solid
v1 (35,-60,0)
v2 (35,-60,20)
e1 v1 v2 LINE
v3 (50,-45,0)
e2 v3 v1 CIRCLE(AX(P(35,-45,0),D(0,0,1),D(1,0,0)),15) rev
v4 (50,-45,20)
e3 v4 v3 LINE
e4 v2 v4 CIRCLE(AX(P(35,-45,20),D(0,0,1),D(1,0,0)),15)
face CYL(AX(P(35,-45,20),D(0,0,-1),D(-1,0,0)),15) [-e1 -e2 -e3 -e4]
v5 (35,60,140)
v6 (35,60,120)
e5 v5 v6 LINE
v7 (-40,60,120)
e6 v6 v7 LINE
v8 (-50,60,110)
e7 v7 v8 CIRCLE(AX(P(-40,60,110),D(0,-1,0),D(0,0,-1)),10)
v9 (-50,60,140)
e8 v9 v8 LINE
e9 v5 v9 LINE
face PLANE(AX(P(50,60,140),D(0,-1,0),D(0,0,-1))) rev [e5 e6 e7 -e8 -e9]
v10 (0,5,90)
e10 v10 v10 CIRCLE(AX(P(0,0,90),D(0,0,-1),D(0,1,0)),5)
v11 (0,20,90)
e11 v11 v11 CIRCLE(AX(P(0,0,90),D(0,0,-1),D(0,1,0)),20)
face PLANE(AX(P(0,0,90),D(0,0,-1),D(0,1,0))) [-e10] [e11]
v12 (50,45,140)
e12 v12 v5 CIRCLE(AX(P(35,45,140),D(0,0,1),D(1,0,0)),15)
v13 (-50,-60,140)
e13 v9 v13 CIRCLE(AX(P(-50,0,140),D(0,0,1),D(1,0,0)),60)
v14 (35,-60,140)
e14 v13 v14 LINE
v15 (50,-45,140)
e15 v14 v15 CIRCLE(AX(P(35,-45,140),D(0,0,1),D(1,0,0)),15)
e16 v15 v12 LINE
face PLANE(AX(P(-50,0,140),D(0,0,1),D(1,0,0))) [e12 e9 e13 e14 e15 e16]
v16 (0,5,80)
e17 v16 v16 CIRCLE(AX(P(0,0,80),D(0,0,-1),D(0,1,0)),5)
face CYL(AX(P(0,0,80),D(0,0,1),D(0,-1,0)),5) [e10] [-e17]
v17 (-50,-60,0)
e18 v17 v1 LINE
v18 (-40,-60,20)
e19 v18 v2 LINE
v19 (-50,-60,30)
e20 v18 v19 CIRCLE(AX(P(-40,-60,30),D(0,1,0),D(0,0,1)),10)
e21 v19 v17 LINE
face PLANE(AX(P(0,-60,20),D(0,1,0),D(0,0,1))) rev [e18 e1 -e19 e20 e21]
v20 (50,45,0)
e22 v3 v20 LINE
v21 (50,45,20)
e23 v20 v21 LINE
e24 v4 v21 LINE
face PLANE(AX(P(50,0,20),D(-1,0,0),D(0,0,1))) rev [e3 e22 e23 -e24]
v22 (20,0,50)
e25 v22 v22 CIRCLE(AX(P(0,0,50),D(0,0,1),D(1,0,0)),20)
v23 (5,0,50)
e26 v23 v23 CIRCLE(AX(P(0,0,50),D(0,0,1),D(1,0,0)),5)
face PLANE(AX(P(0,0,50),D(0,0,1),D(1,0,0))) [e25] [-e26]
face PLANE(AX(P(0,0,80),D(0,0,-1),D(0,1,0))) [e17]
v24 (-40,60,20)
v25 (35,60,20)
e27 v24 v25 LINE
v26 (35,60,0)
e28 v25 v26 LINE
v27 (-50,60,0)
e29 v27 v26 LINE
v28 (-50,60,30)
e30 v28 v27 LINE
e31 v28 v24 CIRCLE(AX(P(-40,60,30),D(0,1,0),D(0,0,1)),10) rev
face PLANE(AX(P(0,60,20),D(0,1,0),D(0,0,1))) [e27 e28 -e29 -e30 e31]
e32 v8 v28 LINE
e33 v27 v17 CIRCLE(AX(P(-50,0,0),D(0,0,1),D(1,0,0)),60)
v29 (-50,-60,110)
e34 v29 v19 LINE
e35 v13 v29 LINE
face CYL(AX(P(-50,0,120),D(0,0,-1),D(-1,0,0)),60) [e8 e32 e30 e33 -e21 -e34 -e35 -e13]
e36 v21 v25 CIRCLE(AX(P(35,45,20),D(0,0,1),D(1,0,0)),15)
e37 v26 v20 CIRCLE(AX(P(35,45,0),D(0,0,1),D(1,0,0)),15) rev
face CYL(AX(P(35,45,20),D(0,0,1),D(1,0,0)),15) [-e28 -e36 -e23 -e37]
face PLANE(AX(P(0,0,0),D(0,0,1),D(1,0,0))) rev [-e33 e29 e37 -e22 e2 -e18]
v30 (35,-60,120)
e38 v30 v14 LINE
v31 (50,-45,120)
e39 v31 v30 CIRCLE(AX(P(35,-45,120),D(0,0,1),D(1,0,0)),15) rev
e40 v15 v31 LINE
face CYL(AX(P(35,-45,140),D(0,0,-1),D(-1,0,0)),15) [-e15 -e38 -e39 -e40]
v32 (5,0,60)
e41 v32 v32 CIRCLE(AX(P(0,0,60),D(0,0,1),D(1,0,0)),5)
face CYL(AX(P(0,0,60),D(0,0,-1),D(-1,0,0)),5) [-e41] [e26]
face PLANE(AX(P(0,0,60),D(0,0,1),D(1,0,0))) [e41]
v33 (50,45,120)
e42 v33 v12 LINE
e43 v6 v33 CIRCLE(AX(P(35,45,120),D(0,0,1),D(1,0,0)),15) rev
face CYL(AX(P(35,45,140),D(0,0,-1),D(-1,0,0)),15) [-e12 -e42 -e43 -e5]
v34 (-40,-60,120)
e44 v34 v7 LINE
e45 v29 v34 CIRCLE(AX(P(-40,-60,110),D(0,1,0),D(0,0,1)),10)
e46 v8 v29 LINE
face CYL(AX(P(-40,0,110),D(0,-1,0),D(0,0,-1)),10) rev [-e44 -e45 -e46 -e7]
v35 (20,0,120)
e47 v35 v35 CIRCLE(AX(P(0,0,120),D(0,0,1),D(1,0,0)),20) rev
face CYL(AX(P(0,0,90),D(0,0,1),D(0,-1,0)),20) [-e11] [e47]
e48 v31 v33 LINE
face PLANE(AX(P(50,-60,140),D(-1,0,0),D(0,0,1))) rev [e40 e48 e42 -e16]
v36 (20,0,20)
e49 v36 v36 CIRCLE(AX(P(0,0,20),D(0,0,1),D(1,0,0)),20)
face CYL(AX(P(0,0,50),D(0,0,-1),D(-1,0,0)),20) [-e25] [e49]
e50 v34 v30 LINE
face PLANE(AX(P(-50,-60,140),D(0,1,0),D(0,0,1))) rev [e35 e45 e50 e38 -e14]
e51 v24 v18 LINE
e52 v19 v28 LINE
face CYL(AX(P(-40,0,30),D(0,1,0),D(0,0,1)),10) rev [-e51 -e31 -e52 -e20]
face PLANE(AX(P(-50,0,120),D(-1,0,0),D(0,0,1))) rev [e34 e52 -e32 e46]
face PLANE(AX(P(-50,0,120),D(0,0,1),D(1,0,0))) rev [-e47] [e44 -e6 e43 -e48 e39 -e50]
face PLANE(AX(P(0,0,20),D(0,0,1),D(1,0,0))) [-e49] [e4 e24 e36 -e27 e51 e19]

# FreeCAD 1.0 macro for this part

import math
import FreeCAD as App
import Part
import Sketcher

V = App.Vector
Q = App.Units.Quantity


def edges_at(feature, points):
    """Names of the edges that pass closest to the given points."""
    edges = feature.Shape.Edges
    near = lambda p: min(range(len(edges)), key=lambda i: edges[i].distToShape(Part.Vertex(*p))[0])
    return sorted({f"Edge{near(p) + 1}" for p in points})

doc = App.newDocument("Part")
params = doc.addObject("Spreadsheet::Sheet", "Params")
for row, (alias, value) in enumerate([
    ("sketch1_width", "100 mm"),
    ("sketch1_height", "120 mm"),
    ("pad1_length", "20 mm"),
    ("sketch2_radius", "60 mm"),
    ("pad2_length", "120 mm"),
    ("sketch3_radius", "60 mm"),
    ("sketch3_width", "100 mm"),
    ("pad3_length", "20 mm"),
    ("fillet_radius", "10 mm"),
    ("fillet2_radius", "15 mm"),
    ("sketch4_diameter", "40 mm"),
    ("pad4_length", "30 mm"),
    ("sketch5_diameter", "10 mm"),
    ("pad5_length", "10 mm"),
    ("sketch6_diameter", "40 mm"),
    ("pad6_length", "30 mm"),
    ("sketch7_diameter", "10 mm"),
    ("pad7_length", "10 mm"),
], start=1):
    params.set(f"A{row}", alias)
    params.set(f"B{row}", "=" + value)
    params.setAlias(f"B{row}", alias)

body = doc.addObject("PartDesign::Body", "Body")

# Sketch on XY plane
sketch1 = body.newObject("Sketcher::SketchObject", "Sketch")
sketch1.AttachmentSupport = (doc.getObject("XY_Plane"), [""])
sketch1.MapMode = "FlatFace"
sketch1.addGeometry([
    Part.LineSegment(V(-50, 60, 0), V(-50, -60, 0)),
    Part.LineSegment(V(-50, -60, 0), V(50, -60, 0)),
    Part.LineSegment(V(50, -60, 0), V(50, 60, 0)),
    Part.LineSegment(V(50, 60, 0), V(-50, 60, 0)),
], False)
sketch1.addConstraint([
    Sketcher.Constraint("Coincident", 0, 2, 1, 1),
    Sketcher.Constraint("Coincident", 1, 2, 2, 1),
    Sketcher.Constraint("Coincident", 2, 2, 3, 1),
    Sketcher.Constraint("Coincident", 3, 2, 0, 1),
    Sketcher.Constraint("Vertical", 0),
    Sketcher.Constraint("Horizontal", 1),
    Sketcher.Constraint("Vertical", 2),
    Sketcher.Constraint("Horizontal", 3),
    Sketcher.Constraint("Symmetric", 0, 2, 2, 2, -1, 1),
    Sketcher.Constraint("DistanceX", 1, 1, 1, 2, Q("100 mm")),
    Sketcher.Constraint("DistanceY", 0, 2, 0, 1, Q("120 mm")),
])
sketch1.setExpression("Constraints[9]", "Params.sketch1_width")
sketch1.setExpression("Constraints[10]", "Params.sketch1_height")
pad1 = body.newObject("PartDesign::Pad", "Pad")
pad1.Profile = sketch1
pad1.setExpression("Length", "Params.pad1_length")

# Sketch on XY plane
sketch2 = body.newObject("Sketcher::SketchObject", "Sketch001")
sketch2.AttachmentSupport = (doc.getObject("XY_Plane"), [""])
sketch2.MapMode = "FlatFace"
sketch2.addGeometry([
    Part.LineSegment(V(-50, -60, 0), V(-50, 60, 0)),
    Part.ArcOfCircle(Part.Circle(V(-50, 0, 0), V(0, 0, 1), 60), math.radians(90), math.radians(270)),
], False)
sketch2.addConstraint([
    Sketcher.Constraint("Coincident", 0, 1, 1, 2),
    Sketcher.Constraint("Coincident", 1, 1, 0, 2),
    Sketcher.Constraint("Vertical", 0),
    Sketcher.Constraint("PointOnObject", 1, 3, -1),
    Sketcher.Constraint("Vertical", 1, 3, 0, 1),
    Sketcher.Constraint("Radius", 1, Q("60 mm")),
    Sketcher.Constraint("DistanceX", 1, 3, -1, 1, Q("50 mm")),
])
sketch2.setExpression("Constraints[5]", "Params.sketch2_radius")
pad2 = body.newObject("PartDesign::Pad", "Pad001")
pad2.Profile = sketch2
pad2.setExpression("Length", "Params.pad2_length")

# Sketch on XY plane
sketch3 = body.newObject("Sketcher::SketchObject", "Sketch002")
sketch3.AttachmentSupport = (doc.getObject("XY_Plane"), [""])
sketch3.MapMode = "FlatFace"
sketch3.AttachmentOffset = App.Placement(V(0, 0, 120), App.Rotation())
sketch3.addGeometry([
    Part.LineSegment(V(-50, -60, 0), V(50, -60, 0)),
    Part.LineSegment(V(50, -60, 0), V(50, 60, 0)),
    Part.LineSegment(V(50, 60, 0), V(-50, 60, 0)),
    Part.ArcOfCircle(Part.Circle(V(-50, 0, 0), V(0, 0, 1), 60), math.radians(90), math.radians(270)),
], False)
sketch3.addConstraint([
    Sketcher.Constraint("Coincident", 0, 2, 1, 1),
    Sketcher.Constraint("Coincident", 1, 2, 2, 1),
    Sketcher.Constraint("Tangent", 2, 2, 3, 1),
    Sketcher.Constraint("Tangent", 3, 2, 0, 1),
    Sketcher.Constraint("Horizontal", 0),
    Sketcher.Constraint("Vertical", 1),
    Sketcher.Constraint("Horizontal", 2),
    Sketcher.Constraint("Symmetric", 0, 2, 2, 2, -1, 1),
    Sketcher.Constraint("Radius", 3, Q("60 mm")),
    Sketcher.Constraint("DistanceX", 0, 1, 0, 2, Q("100 mm")),
])
sketch3.setExpression("Constraints[8]", "Params.sketch3_radius")
sketch3.setExpression("Constraints[9]", "Params.sketch3_width")
pad3 = body.newObject("PartDesign::Pad", "Pad002")
pad3.Profile = sketch3
pad3.setExpression("Length", "Params.pad3_length")
doc.recompute()

fillet = body.newObject("PartDesign::Fillet", "Fillet")
fillet.Base = (pad3, edges_at(pad3, [(-50, 0, 120), (-50, 0, 20)]))
fillet.setExpression("Radius", "Params.fillet_radius")
doc.recompute()

fillet2 = body.newObject("PartDesign::Fillet", "Fillet001")
fillet2.Base = (fillet, edges_at(fillet, [
    (50, -60, 130),
    (50, 60, 130),
    (50, 60, 10),
    (50, -60, 10),
]))
fillet2.setExpression("Radius", "Params.fillet2_radius")

# Sketch on XY plane
sketch4 = body.newObject("Sketcher::SketchObject", "Sketch003")
sketch4.AttachmentSupport = (doc.getObject("XY_Plane"), [""])
sketch4.MapMode = "FlatFace"
sketch4.AttachmentOffset = App.Placement(V(0, 0, 20), App.Rotation())
sketch4.addGeometry(Part.Circle(V(0, 0, 0), V(0, 0, 1), 20), False)
sketch4.addConstraint([
    Sketcher.Constraint("Coincident", 0, 3, -1, 1),
    Sketcher.Constraint("Diameter", 0, Q("40 mm")),
])
sketch4.setExpression("Constraints[1]", "Params.sketch4_diameter")
pad4 = body.newObject("PartDesign::Pad", "Pad003")
pad4.Profile = sketch4
pad4.setExpression("Length", "Params.pad4_length")

# Sketch on XY plane
sketch5 = body.newObject("Sketcher::SketchObject", "Sketch004")
sketch5.AttachmentSupport = (doc.getObject("XY_Plane"), [""])
sketch5.MapMode = "FlatFace"
sketch5.AttachmentOffset = App.Placement(V(0, 0, 50), App.Rotation())
sketch5.addGeometry(Part.Circle(V(0, 0, 0), V(0, 0, 1), 5), False)
sketch5.addConstraint([
    Sketcher.Constraint("Coincident", 0, 3, -1, 1),
    Sketcher.Constraint("Diameter", 0, Q("10 mm")),
])
sketch5.setExpression("Constraints[1]", "Params.sketch5_diameter")
pad5 = body.newObject("PartDesign::Pad", "Pad004")
pad5.Profile = sketch5
pad5.setExpression("Length", "Params.pad5_length")

# Sketch on XY plane
sketch6 = body.newObject("Sketcher::SketchObject", "Sketch005")
sketch6.AttachmentSupport = (doc.getObject("XY_Plane"), [""])
sketch6.MapMode = "FlatFace"
sketch6.AttachmentOffset = App.Placement(V(0, 0, 90), App.Rotation())
sketch6.addGeometry(Part.Circle(V(0, 0, 0), V(0, 0, 1), 20), False)
sketch6.addConstraint([
    Sketcher.Constraint("Coincident", 0, 3, -1, 1),
    Sketcher.Constraint("Diameter", 0, Q("40 mm")),
])
sketch6.setExpression("Constraints[1]", "Params.sketch6_diameter")
pad6 = body.newObject("PartDesign::Pad", "Pad005")
pad6.Profile = sketch6
pad6.setExpression("Length", "Params.pad6_length")

# Sketch on XY plane
sketch7 = body.newObject("Sketcher::SketchObject", "Sketch006")
sketch7.AttachmentSupport = (doc.getObject("XY_Plane"), [""])
sketch7.MapMode = "FlatFace"
sketch7.AttachmentOffset = App.Placement(V(0, 0, 80), App.Rotation())
sketch7.addGeometry(Part.Circle(V(0, 0, 0), V(0, 0, 1), 5), False)
sketch7.addConstraint([
    Sketcher.Constraint("Coincident", 0, 3, -1, 1),
    Sketcher.Constraint("Diameter", 0, Q("10 mm")),
])
sketch7.setExpression("Constraints[1]", "Params.sketch7_diameter")
pad7 = body.newObject("PartDesign::Pad", "Pad006")
pad7.Profile = sketch7
pad7.setExpression("Length", "Params.pad7_length")

doc.recompute()
